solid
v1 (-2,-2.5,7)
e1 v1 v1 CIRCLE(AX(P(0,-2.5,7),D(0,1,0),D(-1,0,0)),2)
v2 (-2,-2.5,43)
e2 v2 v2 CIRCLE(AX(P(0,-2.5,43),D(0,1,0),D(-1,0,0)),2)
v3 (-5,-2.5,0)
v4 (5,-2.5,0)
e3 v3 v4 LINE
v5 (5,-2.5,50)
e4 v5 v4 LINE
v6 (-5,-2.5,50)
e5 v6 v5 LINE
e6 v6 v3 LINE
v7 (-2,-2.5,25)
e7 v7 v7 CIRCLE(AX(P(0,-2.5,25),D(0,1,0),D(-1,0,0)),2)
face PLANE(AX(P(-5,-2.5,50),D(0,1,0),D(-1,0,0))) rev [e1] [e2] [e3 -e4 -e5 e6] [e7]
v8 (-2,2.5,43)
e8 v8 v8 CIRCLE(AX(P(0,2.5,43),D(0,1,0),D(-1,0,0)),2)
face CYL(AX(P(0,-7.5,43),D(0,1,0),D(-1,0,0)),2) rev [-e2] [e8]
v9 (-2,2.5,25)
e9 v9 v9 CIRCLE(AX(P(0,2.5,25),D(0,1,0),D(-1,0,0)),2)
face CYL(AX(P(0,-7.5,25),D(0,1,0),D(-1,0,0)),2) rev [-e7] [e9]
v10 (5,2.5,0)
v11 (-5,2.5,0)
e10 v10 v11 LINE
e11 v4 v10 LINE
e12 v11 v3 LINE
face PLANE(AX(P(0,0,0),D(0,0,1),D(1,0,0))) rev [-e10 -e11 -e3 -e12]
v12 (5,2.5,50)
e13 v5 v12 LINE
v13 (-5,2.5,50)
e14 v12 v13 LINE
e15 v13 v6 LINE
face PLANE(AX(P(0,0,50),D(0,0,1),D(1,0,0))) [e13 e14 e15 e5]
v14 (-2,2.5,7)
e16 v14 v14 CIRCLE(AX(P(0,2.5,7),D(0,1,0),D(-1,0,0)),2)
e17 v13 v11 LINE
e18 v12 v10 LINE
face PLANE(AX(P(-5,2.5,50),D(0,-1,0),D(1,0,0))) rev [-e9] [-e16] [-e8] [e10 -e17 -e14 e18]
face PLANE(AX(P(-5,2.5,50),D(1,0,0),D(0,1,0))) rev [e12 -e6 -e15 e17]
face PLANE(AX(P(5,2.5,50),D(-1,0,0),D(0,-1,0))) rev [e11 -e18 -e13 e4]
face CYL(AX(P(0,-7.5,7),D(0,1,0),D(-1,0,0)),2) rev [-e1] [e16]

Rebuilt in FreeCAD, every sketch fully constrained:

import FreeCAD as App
import Part
import Sketcher

V = App.Vector
Q = App.Units.Quantity

doc = App.newDocument("Part")
params = doc.addObject("Spreadsheet::Sheet", "Params")
for row, (alias, value) in enumerate([
    ("sketch1_width", "10 mm"),
    ("sketch1_height", "5 mm"),
    ("pad1_length", "50 mm"),
    ("sketch2_diameter", "4 mm"),
    ("pocket1_length", "10 mm"),
], start=1):
    params.set(f"A{row}", alias)
    params.set(f"B{row}", "=" + value)
    params.setAlias(f"B{row}", alias)

body = doc.addObject("PartDesign::Body", "Body")

# Sketch on XY plane
sketch1 = body.newObject("Sketcher::SketchObject", "Sketch")
sketch1.AttachmentSupport = (doc.getObject("XY_Plane"), [""])
sketch1.MapMode = "FlatFace"
sketch1.addGeometry([
    Part.LineSegment(V(-5, 2, 0), V(-5, -2, 0)),
    Part.LineSegment(V(-5, -2, 0), V(5, -2, 0)),
    Part.LineSegment(V(5, -2, 0), V(5, 2, 0)),
    Part.LineSegment(V(5, 2, 0), V(-5, 2, 0)),
], False)
sketch1.addConstraint([
    Sketcher.Constraint("Coincident", 0, 2, 1, 1),
    Sketcher.Constraint("Coincident", 1, 2, 2, 1),
    Sketcher.Constraint("Coincident", 2, 2, 3, 1),
    Sketcher.Constraint("Coincident", 3, 2, 0, 1),
    Sketcher.Constraint("Vertical", 0),
    Sketcher.Constraint("Horizontal", 1),
    Sketcher.Constraint("Vertical", 2),
    Sketcher.Constraint("Horizontal", 3),
    Sketcher.Constraint("Symmetric", 0, 2, 2, 2, -1, 1),
    Sketcher.Constraint("DistanceX", 1, 1, 1, 2, Q("10 mm")),
    Sketcher.Constraint("DistanceY", 0, 2, 0, 1, Q("5 mm")),
])
sketch1.setExpression("Constraints[9]", "Params.sketch1_width")
sketch1.setExpression("Constraints[10]", "Params.sketch1_height")
pad1 = body.newObject("PartDesign::Pad", "Pad")
pad1.Profile = sketch1
pad1.setExpression("Length", "Params.pad1_length")

# Sketch on XZ plane
sketch2 = body.newObject("Sketcher::SketchObject", "Sketch001")
sketch2.AttachmentSupport = (doc.getObject("XZ_Plane"), [""])
sketch2.MapMode = "FlatFace"
sketch2.AttachmentOffset = App.Placement(V(0, 0, -2.5), App.Rotation())
sketch2.addGeometry([
    Part.Circle(V(0, 43, 0), V(0, 0, 1), 2),
    Part.Circle(V(0, 25, 0), V(0, 0, 1), 2),
    Part.Circle(V(0, 7, 0), V(0, 0, 1), 2),
], False)
sketch2.addConstraint([
    Sketcher.Constraint("Equal", 0, 1),
    Sketcher.Constraint("Equal", 1, 2),
    Sketcher.Constraint("PointOnObject", 0, 3, -2),
    Sketcher.Constraint("PointOnObject", 1, 3, -2),
    Sketcher.Constraint("PointOnObject", 2, 3, -2),
    Sketcher.Constraint("Diameter", 0, Q("4 mm")),
    Sketcher.Constraint("DistanceY", -1, 1, 0, 3, Q("43 mm")),
    Sketcher.Constraint("DistanceY", -1, 1, 1, 3, Q("25 mm")),
    Sketcher.Constraint("DistanceY", -1, 1, 2, 3, Q("7 mm")),
])
sketch2.setExpression("Constraints[5]", "Params.sketch2_diameter")
pocket1 = body.newObject("PartDesign::Pocket", "Pocket")
pocket1.Profile = sketch2
pocket1.setExpression("Length", "Params.pocket1_length")
pocket1.Reversed = True

doc.recompute()
